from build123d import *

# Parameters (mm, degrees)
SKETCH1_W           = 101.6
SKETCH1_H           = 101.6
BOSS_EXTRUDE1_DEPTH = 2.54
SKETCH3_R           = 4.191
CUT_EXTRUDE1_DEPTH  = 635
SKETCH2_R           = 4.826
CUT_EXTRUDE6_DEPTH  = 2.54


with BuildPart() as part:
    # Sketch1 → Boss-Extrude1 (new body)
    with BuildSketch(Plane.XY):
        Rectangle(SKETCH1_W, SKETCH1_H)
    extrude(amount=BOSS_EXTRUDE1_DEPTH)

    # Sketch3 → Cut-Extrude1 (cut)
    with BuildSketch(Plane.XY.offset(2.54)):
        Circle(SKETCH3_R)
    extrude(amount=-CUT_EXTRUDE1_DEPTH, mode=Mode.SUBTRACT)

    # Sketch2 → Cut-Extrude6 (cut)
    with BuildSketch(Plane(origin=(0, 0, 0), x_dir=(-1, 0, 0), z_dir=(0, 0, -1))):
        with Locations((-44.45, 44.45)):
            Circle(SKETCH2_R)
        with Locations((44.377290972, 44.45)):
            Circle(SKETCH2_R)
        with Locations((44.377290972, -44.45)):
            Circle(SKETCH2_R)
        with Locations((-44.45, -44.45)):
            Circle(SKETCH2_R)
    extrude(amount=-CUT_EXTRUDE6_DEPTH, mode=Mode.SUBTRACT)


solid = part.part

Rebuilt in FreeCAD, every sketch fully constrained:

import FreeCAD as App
import Part
import Sketcher

V = App.Vector
Q = App.Units.Quantity


def add_polygon(sketch, points):
    """Adds a closed chain of lines whose ends are joined by coincident constraints."""
    first, n = sketch.GeometryCount, len(points)
    for a, b in zip(points, points[1:] + points[:1]):
        sketch.addGeometry(Part.LineSegment(App.Vector(*a, 0), App.Vector(*b, 0)), False)
    for i in range(n):
        sketch.addConstraint(Sketcher.Constraint("Coincident", first + i, 2, first + (i + 1) % n, 1))

doc = App.newDocument("Part")
params = doc.addObject("Spreadsheet::Sheet", "Params")
for row, (alias, value) in enumerate([
    ("sketch1_width", "4 in"),
    ("pad1_length", "0.1 in"),
    ("sketch2_diameter", "0.33 in"),
    ("pocket1_length", "25 in"),
    ("sketch3_diameter", "0.38 in"),
    ("pocket2_length", "0.1 in"),
], start=1):
    params.set(f"A{row}", alias)
    params.set(f"B{row}", "=" + value)
    params.setAlias(f"B{row}", alias)

body = doc.addObject("PartDesign::Body", "Body")

# Sketch on XY plane
sketch1 = doc.addObject("Sketcher::SketchObject", "Sketch")
body.addObject(sketch1)
sketch1.AttachmentSupport = (doc.XY_Plane, [""])
sketch1.MapMode = "FlatFace"
add_polygon(sketch1, [(-50.8, 50.8), (-50.8, -50.8), (50.8, -50.8), (50.8, 50.8)])  # lines 0-3
sketch1.addConstraint(Sketcher.Constraint("Vertical", 0))
sketch1.addConstraint(Sketcher.Constraint("Horizontal", 1))
sketch1.addConstraint(Sketcher.Constraint("Vertical", 2))
sketch1.addConstraint(Sketcher.Constraint("Horizontal", 3))
sketch1.addConstraint(Sketcher.Constraint("Symmetric", 0, 2, 2, 2, -1, 1))
sketch1.addConstraint(Sketcher.Constraint("Equal", 3, 0))
sketch1.addConstraint(Sketcher.Constraint("DistanceX", 1, 1, 1, 2, Q("4 in")))
sketch1.setExpression("Constraints[10]", "Params.sketch1_width")
pad1 = doc.addObject("PartDesign::Pad", "Pad")
body.addObject(pad1)
pad1.Profile = sketch1
pad1.setExpression("Length", "Params.pad1_length")

# Sketch on XY plane
sketch2 = doc.addObject("Sketcher::SketchObject", "Sketch001")
body.addObject(sketch2)
sketch2.AttachmentSupport = (doc.XY_Plane, [""])
sketch2.MapMode = "FlatFace"
sketch2.AttachmentOffset = App.Placement(V(0, 0, 0.1 * 25.4), App.Rotation())
sketch2.addGeometry(Part.Circle(V(0, 0, 0), V(0, 0, 1), 4.191), False)
sketch2.addConstraint(Sketcher.Constraint("Coincident", 0, 3, -1, 1))
sketch2.addConstraint(Sketcher.Constraint("Diameter", 0, Q("0.33 in")))
sketch2.setExpression("Constraints[1]", "Params.sketch2_diameter")
pocket1 = doc.addObject("PartDesign::Pocket", "Pocket")
body.addObject(pocket1)
pocket1.Profile = sketch2
pocket1.setExpression("Length", "Params.pocket1_length")

# Sketch on XY plane
sketch3 = doc.addObject("Sketcher::SketchObject", "Sketch002")
body.addObject(sketch3)
sketch3.AttachmentSupport = (doc.XY_Plane, [""])
sketch3.MapMode = "FlatFace"
sketch3.addGeometry(Part.Circle(V(44.45, 44.45, 0), V(0, 0, 1), 4.826), False)
sketch3.addGeometry(Part.Circle(V(-44.377291, 44.45, 0), V(0, 0, 1), 4.826), False)
sketch3.addGeometry(Part.Circle(V(-44.377291, -44.45, 0), V(0, 0, 1), 4.826), False)
sketch3.addGeometry(Part.Circle(V(44.45, -44.45, 0), V(0, 0, 1), 4.826), False)
sketch3.addConstraint(Sketcher.Constraint("Equal", 0, 1))
sketch3.addConstraint(Sketcher.Constraint("Equal", 1, 2))
sketch3.addConstraint(Sketcher.Constraint("Equal", 2, 3))
sketch3.addConstraint(Sketcher.Constraint("Symmetric", 1, 3, 2, 3, -1))
sketch3.addConstraint(Sketcher.Constraint("Symmetric", 0, 3, 3, 3, -1))
sketch3.addConstraint(Sketcher.Constraint("Horizontal", 0, 3, 1, 3))
sketch3.addConstraint(Sketcher.Constraint("Diameter", 0, Q("0.38 in")))
sketch3.addConstraint(Sketcher.Constraint("DistanceY", 2, 3, 1, 3, Q("3.5 in")))
sketch3.addConstraint(Sketcher.Constraint("DistanceX", -1, 1, 0, 3, Q("1.75 in")))
sketch3.addConstraint(Sketcher.Constraint("DistanceX", 1, 3, -1, 1, 44.377291))
sketch3.setExpression("Constraints[6]", "Params.sketch3_diameter")
pocket2 = doc.addObject("PartDesign::Pocket", "Pocket001")
body.addObject(pocket2)
pocket2.Profile = sketch3
pocket2.setExpression("Length", "Params.pocket2_length")
pocket2.Reversed = True

doc.recompute()
